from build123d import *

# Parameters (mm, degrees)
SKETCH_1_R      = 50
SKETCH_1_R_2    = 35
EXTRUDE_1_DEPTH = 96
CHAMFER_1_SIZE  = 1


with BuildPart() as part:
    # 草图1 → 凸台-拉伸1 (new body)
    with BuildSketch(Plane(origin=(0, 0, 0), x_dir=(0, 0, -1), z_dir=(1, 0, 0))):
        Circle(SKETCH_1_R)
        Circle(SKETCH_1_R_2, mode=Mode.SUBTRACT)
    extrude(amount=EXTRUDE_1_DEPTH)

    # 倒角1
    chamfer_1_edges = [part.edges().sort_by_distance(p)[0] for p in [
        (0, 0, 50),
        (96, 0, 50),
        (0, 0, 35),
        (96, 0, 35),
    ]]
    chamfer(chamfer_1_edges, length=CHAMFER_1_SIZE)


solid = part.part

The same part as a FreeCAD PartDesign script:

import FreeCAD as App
import Part
import Sketcher


def edges_at(feature, points):
    """Names of the edges that pass closest to the given points."""
    edges = feature.Shape.Edges
    near = lambda p: min(range(len(edges)), key=lambda i: edges[i].distToShape(Part.Vertex(*p))[0])
    return sorted({f"Edge{near(p) + 1}" for p in points})

doc = App.newDocument("Part")
params = doc.addObject("Spreadsheet::Sheet", "Params")
for row, (alias, value) in enumerate([
    ("sketch1_diameter", "100 mm"),
    ("sketch1_diameter2", "70 mm"),
    ("pad1_length", "96 mm"),
    ("chamfer_size", "1 mm"),
], start=1):
    params.set(f"A{row}", alias)
    params.set(f"B{row}", "=" + value)
    params.setAlias(f"B{row}", alias)

body = doc.addObject("PartDesign::Body", "Body")

sketch1 = doc.addObject("Sketcher::SketchObject", "Sketch")
body.addObject(sketch1)
sketch1.AttachmentSupport = (doc.YZ_Plane, [""])
sketch1.MapMode = "FlatFace"
sketch1.addGeometry(Part.Circle(App.Vector(0, 0, 0), App.Vector(0, 0, 1), 50), False)
sketch1.addGeometry(Part.Circle(App.Vector(0, 0, 0), App.Vector(0, 0, 1), 35), False)
sketch1.addConstraint(Sketcher.Constraint("Coincident", 0, 3, -1, 1))
sketch1.addConstraint(Sketcher.Constraint("Coincident", 1, 3, -1, 1))
sketch1.addConstraint(Sketcher.Constraint("Diameter", 0, 100.0))
sketch1.addConstraint(Sketcher.Constraint("Diameter", 1, 70.0))
sketch1.setExpression("Constraints[2]", "Params.sketch1_diameter")
sketch1.setExpression("Constraints[3]", "Params.sketch1_diameter2")
pad1 = doc.addObject("PartDesign::Pad", "Pad")
body.addObject(pad1)
pad1.Profile = sketch1
pad1.setExpression("Length", "Params.pad1_length")
doc.recompute()

chamfer = doc.addObject("PartDesign::Chamfer", "Chamfer")
body.addObject(chamfer)
chamfer.Base = (pad1, edges_at(pad1, [
    (0, 0, 50),
    (96, 0, 50),
    (0, 0, 35),
    (96, 0, 35),
]))
chamfer.setExpression("Size", "Params.chamfer_size")

doc.recompute()
